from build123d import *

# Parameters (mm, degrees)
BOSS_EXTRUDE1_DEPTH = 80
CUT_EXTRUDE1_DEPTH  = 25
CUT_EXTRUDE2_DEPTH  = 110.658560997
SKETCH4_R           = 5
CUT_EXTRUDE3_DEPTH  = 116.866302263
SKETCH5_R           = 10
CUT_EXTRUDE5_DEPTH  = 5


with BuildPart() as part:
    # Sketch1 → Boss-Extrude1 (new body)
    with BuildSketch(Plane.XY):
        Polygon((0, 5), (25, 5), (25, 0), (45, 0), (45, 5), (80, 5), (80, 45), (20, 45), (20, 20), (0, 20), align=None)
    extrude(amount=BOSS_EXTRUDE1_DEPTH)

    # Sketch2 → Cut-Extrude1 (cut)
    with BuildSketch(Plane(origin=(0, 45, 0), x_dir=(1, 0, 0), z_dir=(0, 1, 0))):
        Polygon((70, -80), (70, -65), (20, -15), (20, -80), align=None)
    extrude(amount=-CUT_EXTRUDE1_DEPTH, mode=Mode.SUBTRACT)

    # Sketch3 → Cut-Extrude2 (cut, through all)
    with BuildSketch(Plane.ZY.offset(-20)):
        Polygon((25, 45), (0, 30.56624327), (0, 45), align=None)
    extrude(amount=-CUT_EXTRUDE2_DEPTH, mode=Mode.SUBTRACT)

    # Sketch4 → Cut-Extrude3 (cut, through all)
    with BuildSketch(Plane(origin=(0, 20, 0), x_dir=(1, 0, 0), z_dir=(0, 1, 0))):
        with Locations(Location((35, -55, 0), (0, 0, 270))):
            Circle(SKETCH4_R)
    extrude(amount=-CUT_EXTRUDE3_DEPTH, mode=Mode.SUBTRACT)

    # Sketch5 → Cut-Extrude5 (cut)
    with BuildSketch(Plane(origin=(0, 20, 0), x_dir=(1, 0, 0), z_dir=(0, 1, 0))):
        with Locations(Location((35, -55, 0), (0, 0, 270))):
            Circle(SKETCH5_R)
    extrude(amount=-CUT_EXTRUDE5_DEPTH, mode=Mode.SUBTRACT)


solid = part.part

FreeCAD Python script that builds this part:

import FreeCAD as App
import Part
import Sketcher

V = App.Vector
Q = App.Units.Quantity

doc = App.newDocument("Part")
params = doc.addObject("Spreadsheet::Sheet", "Params")
for row, (alias, value) in enumerate([
    ("sketch1_width", "25 mm"),
    ("sketch1_width2", "20 mm"),
    ("sketch1_width3", "35 mm"),
    ("sketch1_height", "5 mm"),
    ("sketch1_height2", "40 mm"),
    ("pad1_length", "80 mm"),
    ("sketch2_width", "50 mm"),
    ("sketch2_height", "15 mm"),
    ("sketch2_height2", "65 mm"),
    ("pocket1_length", "25 mm"),
    ("sketch3_height", "25 mm"),
    ("sketch4_diameter", "10 mm"),
    ("sketch5_diameter", "20 mm"),
    ("pocket4_length", "5 mm"),
], start=1):
    params.set(f"A{row}", alias)
    params.set(f"B{row}", "=" + value)
    params.setAlias(f"B{row}", alias)

body = doc.addObject("PartDesign::Body", "Body")

# Sketch on XY plane
sketch1 = body.newObject("Sketcher::SketchObject", "Sketch")
sketch1.AttachmentSupport = (doc.getObject("XY_Plane"), [""])
sketch1.MapMode = "FlatFace"
sketch1.addGeometry([
    Part.LineSegment(V(0, 5, 0), V(25, 5, 0)),  # 0
    Part.LineSegment(V(25, 5, 0), V(25, 0, 0)),  # 1
    Part.LineSegment(V(25, 0, 0), V(45, 0, 0)),  # 2
    Part.LineSegment(V(45, 0, 0), V(45, 5, 0)),  # 3
    Part.LineSegment(V(45, 5, 0), V(80, 5, 0)),  # 4
    Part.LineSegment(V(80, 5, 0), V(80, 45, 0)),  # 5
    Part.LineSegment(V(80, 45, 0), V(20, 45, 0)),  # 6
    Part.LineSegment(V(20, 45, 0), V(20, 20, 0)),  # 7
    Part.LineSegment(V(20, 20, 0), V(0, 20, 0)),  # 8
    Part.LineSegment(V(0, 20, 0), V(0, 5, 0)),  # 9
], False)
sketch1.addConstraint([
    Sketcher.Constraint("Coincident", 0, 2, 1, 1),
    Sketcher.Constraint("Coincident", 1, 2, 2, 1),
    Sketcher.Constraint("Coincident", 2, 2, 3, 1),
    Sketcher.Constraint("Coincident", 3, 2, 4, 1),
    Sketcher.Constraint("Coincident", 4, 2, 5, 1),
    Sketcher.Constraint("Coincident", 5, 2, 6, 1),
    Sketcher.Constraint("Coincident", 6, 2, 7, 1),
    Sketcher.Constraint("Coincident", 7, 2, 8, 1),
    Sketcher.Constraint("Coincident", 8, 2, 9, 1),
    Sketcher.Constraint("Coincident", 9, 2, 0, 1),
    Sketcher.Constraint("Horizontal", 0),
    Sketcher.Constraint("Vertical", 1),
    Sketcher.Constraint("Horizontal", 2),
    Sketcher.Constraint("Vertical", 3),
    Sketcher.Constraint("Horizontal", 4),
    Sketcher.Constraint("Vertical", 5),
    Sketcher.Constraint("Horizontal", 6),
    Sketcher.Constraint("Vertical", 7),
    Sketcher.Constraint("Horizontal", 8),
    Sketcher.Constraint("Vertical", 9),
    Sketcher.Constraint("PointOnObject", 1, 2, -1),
    Sketcher.Constraint("PointOnObject", 8, 2, -2),
    Sketcher.Constraint("Horizontal", 0, 2, 3, 2),
    Sketcher.Constraint("Equal", 2, 8),
    Sketcher.Constraint("Equal", 0, 7),
    Sketcher.Constraint("DistanceX", 0, 1, 0, 2, Q("25 mm")),
    Sketcher.Constraint("DistanceX", 2, 1, 2, 2, Q("20 mm")),
    Sketcher.Constraint("DistanceX", 4, 1, 4, 2, Q("35 mm")),
    Sketcher.Constraint("DistanceY", 1, 2, 1, 1, Q("5 mm")),
    Sketcher.Constraint("DistanceY", 5, 1, 5, 2, Q("40 mm")),
])
sketch1.setExpression("Constraints[25]", "Params.sketch1_width")
sketch1.setExpression("Constraints[26]", "Params.sketch1_width2")
sketch1.setExpression("Constraints[27]", "Params.sketch1_width3")
sketch1.setExpression("Constraints[28]", "Params.sketch1_height")
sketch1.setExpression("Constraints[29]", "Params.sketch1_height2")
pad1 = body.newObject("PartDesign::Pad", "Pad")
pad1.Profile = sketch1
pad1.setExpression("Length", "Params.pad1_length")

# Sketch on XZ plane
sketch2 = body.newObject("Sketcher::SketchObject", "Sketch001")
sketch2.AttachmentSupport = (doc.getObject("XZ_Plane"), [""])
sketch2.MapMode = "FlatFace"
sketch2.AttachmentOffset = App.Placement(V(0, 0, -45), App.Rotation())
sketch2.addGeometry([
    Part.LineSegment(V(70, 80, 0), V(70, 65, 0)),
    Part.LineSegment(V(70, 65, 0), V(20, 15, 0)),
    Part.LineSegment(V(20, 15, 0), V(20, 80, 0)),
    Part.LineSegment(V(20, 80, 0), V(70, 80, 0)),
], False)
sketch2.addConstraint([
    Sketcher.Constraint("Coincident", 0, 2, 1, 1),
    Sketcher.Constraint("Coincident", 1, 2, 2, 1),
    Sketcher.Constraint("Coincident", 2, 2, 3, 1),
    Sketcher.Constraint("Coincident", 3, 2, 0, 1),
    Sketcher.Constraint("Vertical", 0),
    Sketcher.Constraint("Vertical", 2),
    Sketcher.Constraint("Horizontal", 3),
    Sketcher.Constraint("DistanceX", 3, 1, 3, 2, Q("50 mm")),
    Sketcher.Constraint("DistanceY", 0, 2, 0, 1, Q("15 mm")),
    Sketcher.Constraint("DistanceY", 2, 1, 2, 2, Q("65 mm")),
    Sketcher.Constraint("DistanceX", -1, 1, 0, 2, Q("70 mm")),
    Sketcher.Constraint("DistanceY", -1, 1, 0, 2, Q("65 mm")),
])
sketch2.setExpression("Constraints[7]", "Params.sketch2_width")
sketch2.setExpression("Constraints[8]", "Params.sketch2_height")
sketch2.setExpression("Constraints[9]", "Params.sketch2_height2")
pocket1 = body.newObject("PartDesign::Pocket", "Pocket")
pocket1.Profile = sketch2
pocket1.setExpression("Length", "Params.pocket1_length")
pocket1.Reversed = True

# Sketch on YZ plane
sketch3 = body.newObject("Sketcher::SketchObject", "Sketch002")
sketch3.AttachmentSupport = (doc.getObject("YZ_Plane"), [""])
sketch3.MapMode = "FlatFace"
sketch3.AttachmentOffset = App.Placement(V(0, 0, 20), App.Rotation())
sketch3.addGeometry([
    Part.LineSegment(V(31, 0, 0), V(45, 25, 0)),
    Part.LineSegment(V(45, 25, 0), V(45, 0, 0)),
    Part.LineSegment(V(45, 0, 0), V(31, 0, 0)),
], False)
sketch3.addConstraint([
    Sketcher.Constraint("Coincident", 0, 2, 1, 1),
    Sketcher.Constraint("Coincident", 1, 2, 2, 1),
    Sketcher.Constraint("Coincident", 2, 2, 0, 1),
    Sketcher.Constraint("Vertical", 1),
    Sketcher.Constraint("Horizontal", 2),
    Sketcher.Constraint("PointOnObject", 1, 2, -1),
    Sketcher.Constraint("DistanceY", 1, 2, 1, 1, Q("25 mm")),
    Sketcher.Constraint("Angle", 0, Q("60 deg")),
    Sketcher.Constraint("DistanceX", -1, 1, 0, 2, Q("45 mm")),
])
sketch3.setExpression("Constraints[6]", "Params.sketch3_height")
pocket2 = body.newObject("PartDesign::Pocket", "Pocket001")
pocket2.Profile = sketch3
pocket2.Type = "ThroughAll"
pocket2.Reversed = True

# Sketch on XZ plane
sketch4 = body.newObject("Sketcher::SketchObject", "Sketch003")
sketch4.AttachmentSupport = (doc.getObject("XZ_Plane"), [""])
sketch4.MapMode = "FlatFace"
sketch4.AttachmentOffset = App.Placement(V(0, 0, -20), App.Rotation())
sketch4.addGeometry(Part.Circle(V(35, 55, 0), V(0, 0, 1), 5), False)
sketch4.addConstraint([
    Sketcher.Constraint("Diameter", 0, Q("10 mm")),
    Sketcher.Constraint("DistanceX", -1, 1, 0, 3, Q("35 mm")),
    Sketcher.Constraint("DistanceY", -1, 1, 0, 3, Q("55 mm")),
])
sketch4.setExpression("Constraints[0]", "Params.sketch4_diameter")
pocket3 = body.newObject("PartDesign::Pocket", "Pocket002")
pocket3.Profile = sketch4
pocket3.Type = "ThroughAll"
pocket3.Reversed = True

# Sketch on XZ plane
sketch5 = body.newObject("Sketcher::SketchObject", "Sketch004")
sketch5.AttachmentSupport = (doc.getObject("XZ_Plane"), [""])
sketch5.MapMode = "FlatFace"
sketch5.AttachmentOffset = App.Placement(V(0, 0, -20), App.Rotation())
sketch5.addGeometry(Part.Circle(V(35, 55, 0), V(0, 0, 1), 10), False)
sketch5.addConstraint([
    Sketcher.Constraint("Diameter", 0, Q("20 mm")),
    Sketcher.Constraint("DistanceX", -1, 1, 0, 3, Q("35 mm")),
    Sketcher.Constraint("DistanceY", -1, 1, 0, 3, Q("55 mm")),
])
sketch5.setExpression("Constraints[0]", "Params.sketch5_diameter")
pocket4 = body.newObject("PartDesign::Pocket", "Pocket003")
pocket4.Profile = sketch5
pocket4.setExpression("Length", "Params.pocket4_length")
pocket4.Reversed = True

doc.recompute()
